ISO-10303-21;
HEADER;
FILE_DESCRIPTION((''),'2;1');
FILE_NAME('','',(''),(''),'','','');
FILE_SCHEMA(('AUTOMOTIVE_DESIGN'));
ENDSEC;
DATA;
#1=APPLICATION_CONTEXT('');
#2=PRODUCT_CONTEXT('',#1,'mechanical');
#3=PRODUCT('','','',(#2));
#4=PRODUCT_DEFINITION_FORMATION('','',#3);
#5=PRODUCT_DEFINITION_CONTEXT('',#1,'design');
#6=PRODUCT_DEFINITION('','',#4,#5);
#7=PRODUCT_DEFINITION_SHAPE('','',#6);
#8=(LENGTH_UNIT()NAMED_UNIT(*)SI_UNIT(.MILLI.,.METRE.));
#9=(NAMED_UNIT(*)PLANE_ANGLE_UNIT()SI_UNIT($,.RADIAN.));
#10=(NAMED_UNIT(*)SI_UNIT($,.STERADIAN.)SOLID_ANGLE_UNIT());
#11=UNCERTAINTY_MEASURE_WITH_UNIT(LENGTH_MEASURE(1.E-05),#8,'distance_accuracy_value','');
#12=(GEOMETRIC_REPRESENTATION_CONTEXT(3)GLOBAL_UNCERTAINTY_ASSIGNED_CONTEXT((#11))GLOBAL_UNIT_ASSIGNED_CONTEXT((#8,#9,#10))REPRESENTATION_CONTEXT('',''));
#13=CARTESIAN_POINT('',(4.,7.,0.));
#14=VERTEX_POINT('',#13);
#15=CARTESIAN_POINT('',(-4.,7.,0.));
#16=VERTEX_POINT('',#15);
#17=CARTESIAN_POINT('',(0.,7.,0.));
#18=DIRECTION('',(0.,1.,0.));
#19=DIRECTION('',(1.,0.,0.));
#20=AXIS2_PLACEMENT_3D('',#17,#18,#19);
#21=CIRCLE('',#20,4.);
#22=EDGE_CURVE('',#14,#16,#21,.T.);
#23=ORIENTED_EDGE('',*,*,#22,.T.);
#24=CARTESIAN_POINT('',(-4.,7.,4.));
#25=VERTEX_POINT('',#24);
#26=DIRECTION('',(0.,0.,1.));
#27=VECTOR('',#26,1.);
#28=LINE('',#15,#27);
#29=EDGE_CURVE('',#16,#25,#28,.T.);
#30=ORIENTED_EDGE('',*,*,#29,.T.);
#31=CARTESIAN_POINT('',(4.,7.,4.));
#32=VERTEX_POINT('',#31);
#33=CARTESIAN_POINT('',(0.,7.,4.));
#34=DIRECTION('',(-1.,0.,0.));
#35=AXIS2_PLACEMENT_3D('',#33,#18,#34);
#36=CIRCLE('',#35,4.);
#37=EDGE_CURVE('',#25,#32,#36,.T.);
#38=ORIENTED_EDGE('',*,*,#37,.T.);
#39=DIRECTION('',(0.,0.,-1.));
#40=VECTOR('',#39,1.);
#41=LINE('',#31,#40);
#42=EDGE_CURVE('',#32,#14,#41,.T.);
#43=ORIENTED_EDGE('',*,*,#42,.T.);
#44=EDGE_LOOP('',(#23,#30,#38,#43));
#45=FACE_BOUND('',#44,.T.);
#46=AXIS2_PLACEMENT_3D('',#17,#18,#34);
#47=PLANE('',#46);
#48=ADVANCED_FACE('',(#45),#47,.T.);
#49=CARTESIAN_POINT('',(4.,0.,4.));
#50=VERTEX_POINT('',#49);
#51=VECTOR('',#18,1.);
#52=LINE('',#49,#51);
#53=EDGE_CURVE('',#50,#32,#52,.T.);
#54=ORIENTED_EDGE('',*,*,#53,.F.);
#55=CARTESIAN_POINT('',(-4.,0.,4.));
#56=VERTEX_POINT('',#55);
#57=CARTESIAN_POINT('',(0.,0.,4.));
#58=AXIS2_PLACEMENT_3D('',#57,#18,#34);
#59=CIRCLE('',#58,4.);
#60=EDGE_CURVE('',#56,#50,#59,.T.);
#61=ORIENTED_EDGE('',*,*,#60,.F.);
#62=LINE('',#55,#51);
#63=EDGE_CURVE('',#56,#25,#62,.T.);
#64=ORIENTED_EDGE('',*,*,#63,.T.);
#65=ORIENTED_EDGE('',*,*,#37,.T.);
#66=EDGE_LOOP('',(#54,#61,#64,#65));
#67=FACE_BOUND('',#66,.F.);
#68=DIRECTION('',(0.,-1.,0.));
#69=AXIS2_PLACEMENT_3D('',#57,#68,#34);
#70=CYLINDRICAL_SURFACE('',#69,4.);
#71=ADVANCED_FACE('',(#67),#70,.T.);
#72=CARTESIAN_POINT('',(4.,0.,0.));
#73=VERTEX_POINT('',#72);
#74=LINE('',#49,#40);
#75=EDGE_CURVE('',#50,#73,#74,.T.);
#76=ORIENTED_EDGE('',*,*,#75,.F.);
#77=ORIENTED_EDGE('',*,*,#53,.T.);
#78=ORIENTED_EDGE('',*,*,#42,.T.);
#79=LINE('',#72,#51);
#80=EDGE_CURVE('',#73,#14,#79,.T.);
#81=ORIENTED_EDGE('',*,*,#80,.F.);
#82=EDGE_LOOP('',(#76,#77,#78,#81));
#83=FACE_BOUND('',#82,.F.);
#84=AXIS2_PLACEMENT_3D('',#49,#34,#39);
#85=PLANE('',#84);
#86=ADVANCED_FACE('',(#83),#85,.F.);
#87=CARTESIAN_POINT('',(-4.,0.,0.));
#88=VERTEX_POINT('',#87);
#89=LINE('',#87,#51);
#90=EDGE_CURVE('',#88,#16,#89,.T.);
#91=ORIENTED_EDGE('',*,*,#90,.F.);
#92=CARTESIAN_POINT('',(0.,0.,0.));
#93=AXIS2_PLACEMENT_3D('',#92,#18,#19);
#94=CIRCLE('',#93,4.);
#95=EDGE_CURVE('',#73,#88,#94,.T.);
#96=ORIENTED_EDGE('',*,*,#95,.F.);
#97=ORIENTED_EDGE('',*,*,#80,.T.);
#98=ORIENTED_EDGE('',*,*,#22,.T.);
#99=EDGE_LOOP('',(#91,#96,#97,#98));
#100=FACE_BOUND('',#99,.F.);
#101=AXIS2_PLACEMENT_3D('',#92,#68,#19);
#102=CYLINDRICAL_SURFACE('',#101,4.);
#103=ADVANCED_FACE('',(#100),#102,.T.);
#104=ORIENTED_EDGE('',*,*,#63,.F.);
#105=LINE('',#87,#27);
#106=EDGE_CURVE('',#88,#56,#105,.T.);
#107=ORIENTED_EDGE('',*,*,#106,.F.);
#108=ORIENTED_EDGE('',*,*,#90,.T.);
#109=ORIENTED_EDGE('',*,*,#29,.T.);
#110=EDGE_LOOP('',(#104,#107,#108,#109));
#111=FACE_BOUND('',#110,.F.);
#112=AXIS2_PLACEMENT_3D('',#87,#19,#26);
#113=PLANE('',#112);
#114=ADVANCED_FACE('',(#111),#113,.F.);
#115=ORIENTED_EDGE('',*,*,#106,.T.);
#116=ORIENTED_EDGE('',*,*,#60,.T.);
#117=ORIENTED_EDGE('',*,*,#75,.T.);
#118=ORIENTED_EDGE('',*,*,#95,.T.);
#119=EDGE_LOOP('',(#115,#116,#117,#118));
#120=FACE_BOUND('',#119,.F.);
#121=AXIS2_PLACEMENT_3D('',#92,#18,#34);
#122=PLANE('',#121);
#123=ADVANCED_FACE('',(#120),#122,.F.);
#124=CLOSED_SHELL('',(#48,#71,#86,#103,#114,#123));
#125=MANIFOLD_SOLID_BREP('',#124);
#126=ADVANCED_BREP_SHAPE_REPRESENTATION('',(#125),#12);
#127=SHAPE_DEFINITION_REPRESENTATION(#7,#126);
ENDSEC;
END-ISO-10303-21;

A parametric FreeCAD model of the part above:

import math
import FreeCAD as App
import Part
import Sketcher
from FreeCAD import Vector

doc = App.newDocument("Part")
params = doc.addObject("Spreadsheet::Sheet", "Params")
for row, (alias, value) in enumerate([
    ("sketch1_radius", "4 mm"),
    ("sketch1_height", "4 mm"),
    ("pad1_length", "7 mm"),
], start=1):
    params.set(f"A{row}", alias)
    params.set(f"B{row}", "=" + value)
    params.setAlias(f"B{row}", alias)

body = doc.addObject("PartDesign::Body", "Body")

# Sketch on XZ plane
sketch1 = body.newObject("Sketcher::SketchObject", "Sketch")
sketch1.AttachmentSupport = (doc.getObject("XZ_Plane"), [""])
sketch1.MapMode = "FlatFace"
sketch1.addGeometry(Part.ArcOfCircle(Part.Circle(Vector(0, 0, 0), Vector(0, 0, 1), 4), math.radians(180), math.radians(360)), False)
sketch1.addGeometry(Part.LineSegment(Vector(-4, 0, 0), Vector(-4, 4, 0)), False)
sketch1.addGeometry(Part.ArcOfCircle(Part.Circle(Vector(0, 4, 0), Vector(0, 0, 1), 4), math.radians(0), math.radians(180)), False)
sketch1.addGeometry(Part.LineSegment(Vector(4, 4, 0), Vector(4, 0, 0)), False)
sketch1.addConstraint(Sketcher.Constraint("Tangent", 0, 1, 1, 1))
sketch1.addConstraint(Sketcher.Constraint("Tangent", 1, 2, 2, 2))
sketch1.addConstraint(Sketcher.Constraint("Tangent", 2, 1, 3, 1))
sketch1.addConstraint(Sketcher.Constraint("Tangent", 3, 2, 0, 2))
sketch1.addConstraint(Sketcher.Constraint("Vertical", 1))
sketch1.addConstraint(Sketcher.Constraint("Vertical", 3))
sketch1.addConstraint(Sketcher.Constraint("Coincident", 0, 3, -1, 1))
sketch1.addConstraint(Sketcher.Constraint("Radius", 0, 4.0))
sketch1.addConstraint(Sketcher.Constraint("DistanceY", 1, 1, 1, 2, 4.0))
sketch1.setExpression("Constraints[7]", "Params.sketch1_radius")
sketch1.setExpression("Constraints[8]", "Params.sketch1_height")
pad1 = body.newObject("PartDesign::Pad", "Pad")
pad1.Profile = sketch1
pad1.setExpression("Length", "Params.pad1_length")
pad1.Reversed = True

doc.recompute()
